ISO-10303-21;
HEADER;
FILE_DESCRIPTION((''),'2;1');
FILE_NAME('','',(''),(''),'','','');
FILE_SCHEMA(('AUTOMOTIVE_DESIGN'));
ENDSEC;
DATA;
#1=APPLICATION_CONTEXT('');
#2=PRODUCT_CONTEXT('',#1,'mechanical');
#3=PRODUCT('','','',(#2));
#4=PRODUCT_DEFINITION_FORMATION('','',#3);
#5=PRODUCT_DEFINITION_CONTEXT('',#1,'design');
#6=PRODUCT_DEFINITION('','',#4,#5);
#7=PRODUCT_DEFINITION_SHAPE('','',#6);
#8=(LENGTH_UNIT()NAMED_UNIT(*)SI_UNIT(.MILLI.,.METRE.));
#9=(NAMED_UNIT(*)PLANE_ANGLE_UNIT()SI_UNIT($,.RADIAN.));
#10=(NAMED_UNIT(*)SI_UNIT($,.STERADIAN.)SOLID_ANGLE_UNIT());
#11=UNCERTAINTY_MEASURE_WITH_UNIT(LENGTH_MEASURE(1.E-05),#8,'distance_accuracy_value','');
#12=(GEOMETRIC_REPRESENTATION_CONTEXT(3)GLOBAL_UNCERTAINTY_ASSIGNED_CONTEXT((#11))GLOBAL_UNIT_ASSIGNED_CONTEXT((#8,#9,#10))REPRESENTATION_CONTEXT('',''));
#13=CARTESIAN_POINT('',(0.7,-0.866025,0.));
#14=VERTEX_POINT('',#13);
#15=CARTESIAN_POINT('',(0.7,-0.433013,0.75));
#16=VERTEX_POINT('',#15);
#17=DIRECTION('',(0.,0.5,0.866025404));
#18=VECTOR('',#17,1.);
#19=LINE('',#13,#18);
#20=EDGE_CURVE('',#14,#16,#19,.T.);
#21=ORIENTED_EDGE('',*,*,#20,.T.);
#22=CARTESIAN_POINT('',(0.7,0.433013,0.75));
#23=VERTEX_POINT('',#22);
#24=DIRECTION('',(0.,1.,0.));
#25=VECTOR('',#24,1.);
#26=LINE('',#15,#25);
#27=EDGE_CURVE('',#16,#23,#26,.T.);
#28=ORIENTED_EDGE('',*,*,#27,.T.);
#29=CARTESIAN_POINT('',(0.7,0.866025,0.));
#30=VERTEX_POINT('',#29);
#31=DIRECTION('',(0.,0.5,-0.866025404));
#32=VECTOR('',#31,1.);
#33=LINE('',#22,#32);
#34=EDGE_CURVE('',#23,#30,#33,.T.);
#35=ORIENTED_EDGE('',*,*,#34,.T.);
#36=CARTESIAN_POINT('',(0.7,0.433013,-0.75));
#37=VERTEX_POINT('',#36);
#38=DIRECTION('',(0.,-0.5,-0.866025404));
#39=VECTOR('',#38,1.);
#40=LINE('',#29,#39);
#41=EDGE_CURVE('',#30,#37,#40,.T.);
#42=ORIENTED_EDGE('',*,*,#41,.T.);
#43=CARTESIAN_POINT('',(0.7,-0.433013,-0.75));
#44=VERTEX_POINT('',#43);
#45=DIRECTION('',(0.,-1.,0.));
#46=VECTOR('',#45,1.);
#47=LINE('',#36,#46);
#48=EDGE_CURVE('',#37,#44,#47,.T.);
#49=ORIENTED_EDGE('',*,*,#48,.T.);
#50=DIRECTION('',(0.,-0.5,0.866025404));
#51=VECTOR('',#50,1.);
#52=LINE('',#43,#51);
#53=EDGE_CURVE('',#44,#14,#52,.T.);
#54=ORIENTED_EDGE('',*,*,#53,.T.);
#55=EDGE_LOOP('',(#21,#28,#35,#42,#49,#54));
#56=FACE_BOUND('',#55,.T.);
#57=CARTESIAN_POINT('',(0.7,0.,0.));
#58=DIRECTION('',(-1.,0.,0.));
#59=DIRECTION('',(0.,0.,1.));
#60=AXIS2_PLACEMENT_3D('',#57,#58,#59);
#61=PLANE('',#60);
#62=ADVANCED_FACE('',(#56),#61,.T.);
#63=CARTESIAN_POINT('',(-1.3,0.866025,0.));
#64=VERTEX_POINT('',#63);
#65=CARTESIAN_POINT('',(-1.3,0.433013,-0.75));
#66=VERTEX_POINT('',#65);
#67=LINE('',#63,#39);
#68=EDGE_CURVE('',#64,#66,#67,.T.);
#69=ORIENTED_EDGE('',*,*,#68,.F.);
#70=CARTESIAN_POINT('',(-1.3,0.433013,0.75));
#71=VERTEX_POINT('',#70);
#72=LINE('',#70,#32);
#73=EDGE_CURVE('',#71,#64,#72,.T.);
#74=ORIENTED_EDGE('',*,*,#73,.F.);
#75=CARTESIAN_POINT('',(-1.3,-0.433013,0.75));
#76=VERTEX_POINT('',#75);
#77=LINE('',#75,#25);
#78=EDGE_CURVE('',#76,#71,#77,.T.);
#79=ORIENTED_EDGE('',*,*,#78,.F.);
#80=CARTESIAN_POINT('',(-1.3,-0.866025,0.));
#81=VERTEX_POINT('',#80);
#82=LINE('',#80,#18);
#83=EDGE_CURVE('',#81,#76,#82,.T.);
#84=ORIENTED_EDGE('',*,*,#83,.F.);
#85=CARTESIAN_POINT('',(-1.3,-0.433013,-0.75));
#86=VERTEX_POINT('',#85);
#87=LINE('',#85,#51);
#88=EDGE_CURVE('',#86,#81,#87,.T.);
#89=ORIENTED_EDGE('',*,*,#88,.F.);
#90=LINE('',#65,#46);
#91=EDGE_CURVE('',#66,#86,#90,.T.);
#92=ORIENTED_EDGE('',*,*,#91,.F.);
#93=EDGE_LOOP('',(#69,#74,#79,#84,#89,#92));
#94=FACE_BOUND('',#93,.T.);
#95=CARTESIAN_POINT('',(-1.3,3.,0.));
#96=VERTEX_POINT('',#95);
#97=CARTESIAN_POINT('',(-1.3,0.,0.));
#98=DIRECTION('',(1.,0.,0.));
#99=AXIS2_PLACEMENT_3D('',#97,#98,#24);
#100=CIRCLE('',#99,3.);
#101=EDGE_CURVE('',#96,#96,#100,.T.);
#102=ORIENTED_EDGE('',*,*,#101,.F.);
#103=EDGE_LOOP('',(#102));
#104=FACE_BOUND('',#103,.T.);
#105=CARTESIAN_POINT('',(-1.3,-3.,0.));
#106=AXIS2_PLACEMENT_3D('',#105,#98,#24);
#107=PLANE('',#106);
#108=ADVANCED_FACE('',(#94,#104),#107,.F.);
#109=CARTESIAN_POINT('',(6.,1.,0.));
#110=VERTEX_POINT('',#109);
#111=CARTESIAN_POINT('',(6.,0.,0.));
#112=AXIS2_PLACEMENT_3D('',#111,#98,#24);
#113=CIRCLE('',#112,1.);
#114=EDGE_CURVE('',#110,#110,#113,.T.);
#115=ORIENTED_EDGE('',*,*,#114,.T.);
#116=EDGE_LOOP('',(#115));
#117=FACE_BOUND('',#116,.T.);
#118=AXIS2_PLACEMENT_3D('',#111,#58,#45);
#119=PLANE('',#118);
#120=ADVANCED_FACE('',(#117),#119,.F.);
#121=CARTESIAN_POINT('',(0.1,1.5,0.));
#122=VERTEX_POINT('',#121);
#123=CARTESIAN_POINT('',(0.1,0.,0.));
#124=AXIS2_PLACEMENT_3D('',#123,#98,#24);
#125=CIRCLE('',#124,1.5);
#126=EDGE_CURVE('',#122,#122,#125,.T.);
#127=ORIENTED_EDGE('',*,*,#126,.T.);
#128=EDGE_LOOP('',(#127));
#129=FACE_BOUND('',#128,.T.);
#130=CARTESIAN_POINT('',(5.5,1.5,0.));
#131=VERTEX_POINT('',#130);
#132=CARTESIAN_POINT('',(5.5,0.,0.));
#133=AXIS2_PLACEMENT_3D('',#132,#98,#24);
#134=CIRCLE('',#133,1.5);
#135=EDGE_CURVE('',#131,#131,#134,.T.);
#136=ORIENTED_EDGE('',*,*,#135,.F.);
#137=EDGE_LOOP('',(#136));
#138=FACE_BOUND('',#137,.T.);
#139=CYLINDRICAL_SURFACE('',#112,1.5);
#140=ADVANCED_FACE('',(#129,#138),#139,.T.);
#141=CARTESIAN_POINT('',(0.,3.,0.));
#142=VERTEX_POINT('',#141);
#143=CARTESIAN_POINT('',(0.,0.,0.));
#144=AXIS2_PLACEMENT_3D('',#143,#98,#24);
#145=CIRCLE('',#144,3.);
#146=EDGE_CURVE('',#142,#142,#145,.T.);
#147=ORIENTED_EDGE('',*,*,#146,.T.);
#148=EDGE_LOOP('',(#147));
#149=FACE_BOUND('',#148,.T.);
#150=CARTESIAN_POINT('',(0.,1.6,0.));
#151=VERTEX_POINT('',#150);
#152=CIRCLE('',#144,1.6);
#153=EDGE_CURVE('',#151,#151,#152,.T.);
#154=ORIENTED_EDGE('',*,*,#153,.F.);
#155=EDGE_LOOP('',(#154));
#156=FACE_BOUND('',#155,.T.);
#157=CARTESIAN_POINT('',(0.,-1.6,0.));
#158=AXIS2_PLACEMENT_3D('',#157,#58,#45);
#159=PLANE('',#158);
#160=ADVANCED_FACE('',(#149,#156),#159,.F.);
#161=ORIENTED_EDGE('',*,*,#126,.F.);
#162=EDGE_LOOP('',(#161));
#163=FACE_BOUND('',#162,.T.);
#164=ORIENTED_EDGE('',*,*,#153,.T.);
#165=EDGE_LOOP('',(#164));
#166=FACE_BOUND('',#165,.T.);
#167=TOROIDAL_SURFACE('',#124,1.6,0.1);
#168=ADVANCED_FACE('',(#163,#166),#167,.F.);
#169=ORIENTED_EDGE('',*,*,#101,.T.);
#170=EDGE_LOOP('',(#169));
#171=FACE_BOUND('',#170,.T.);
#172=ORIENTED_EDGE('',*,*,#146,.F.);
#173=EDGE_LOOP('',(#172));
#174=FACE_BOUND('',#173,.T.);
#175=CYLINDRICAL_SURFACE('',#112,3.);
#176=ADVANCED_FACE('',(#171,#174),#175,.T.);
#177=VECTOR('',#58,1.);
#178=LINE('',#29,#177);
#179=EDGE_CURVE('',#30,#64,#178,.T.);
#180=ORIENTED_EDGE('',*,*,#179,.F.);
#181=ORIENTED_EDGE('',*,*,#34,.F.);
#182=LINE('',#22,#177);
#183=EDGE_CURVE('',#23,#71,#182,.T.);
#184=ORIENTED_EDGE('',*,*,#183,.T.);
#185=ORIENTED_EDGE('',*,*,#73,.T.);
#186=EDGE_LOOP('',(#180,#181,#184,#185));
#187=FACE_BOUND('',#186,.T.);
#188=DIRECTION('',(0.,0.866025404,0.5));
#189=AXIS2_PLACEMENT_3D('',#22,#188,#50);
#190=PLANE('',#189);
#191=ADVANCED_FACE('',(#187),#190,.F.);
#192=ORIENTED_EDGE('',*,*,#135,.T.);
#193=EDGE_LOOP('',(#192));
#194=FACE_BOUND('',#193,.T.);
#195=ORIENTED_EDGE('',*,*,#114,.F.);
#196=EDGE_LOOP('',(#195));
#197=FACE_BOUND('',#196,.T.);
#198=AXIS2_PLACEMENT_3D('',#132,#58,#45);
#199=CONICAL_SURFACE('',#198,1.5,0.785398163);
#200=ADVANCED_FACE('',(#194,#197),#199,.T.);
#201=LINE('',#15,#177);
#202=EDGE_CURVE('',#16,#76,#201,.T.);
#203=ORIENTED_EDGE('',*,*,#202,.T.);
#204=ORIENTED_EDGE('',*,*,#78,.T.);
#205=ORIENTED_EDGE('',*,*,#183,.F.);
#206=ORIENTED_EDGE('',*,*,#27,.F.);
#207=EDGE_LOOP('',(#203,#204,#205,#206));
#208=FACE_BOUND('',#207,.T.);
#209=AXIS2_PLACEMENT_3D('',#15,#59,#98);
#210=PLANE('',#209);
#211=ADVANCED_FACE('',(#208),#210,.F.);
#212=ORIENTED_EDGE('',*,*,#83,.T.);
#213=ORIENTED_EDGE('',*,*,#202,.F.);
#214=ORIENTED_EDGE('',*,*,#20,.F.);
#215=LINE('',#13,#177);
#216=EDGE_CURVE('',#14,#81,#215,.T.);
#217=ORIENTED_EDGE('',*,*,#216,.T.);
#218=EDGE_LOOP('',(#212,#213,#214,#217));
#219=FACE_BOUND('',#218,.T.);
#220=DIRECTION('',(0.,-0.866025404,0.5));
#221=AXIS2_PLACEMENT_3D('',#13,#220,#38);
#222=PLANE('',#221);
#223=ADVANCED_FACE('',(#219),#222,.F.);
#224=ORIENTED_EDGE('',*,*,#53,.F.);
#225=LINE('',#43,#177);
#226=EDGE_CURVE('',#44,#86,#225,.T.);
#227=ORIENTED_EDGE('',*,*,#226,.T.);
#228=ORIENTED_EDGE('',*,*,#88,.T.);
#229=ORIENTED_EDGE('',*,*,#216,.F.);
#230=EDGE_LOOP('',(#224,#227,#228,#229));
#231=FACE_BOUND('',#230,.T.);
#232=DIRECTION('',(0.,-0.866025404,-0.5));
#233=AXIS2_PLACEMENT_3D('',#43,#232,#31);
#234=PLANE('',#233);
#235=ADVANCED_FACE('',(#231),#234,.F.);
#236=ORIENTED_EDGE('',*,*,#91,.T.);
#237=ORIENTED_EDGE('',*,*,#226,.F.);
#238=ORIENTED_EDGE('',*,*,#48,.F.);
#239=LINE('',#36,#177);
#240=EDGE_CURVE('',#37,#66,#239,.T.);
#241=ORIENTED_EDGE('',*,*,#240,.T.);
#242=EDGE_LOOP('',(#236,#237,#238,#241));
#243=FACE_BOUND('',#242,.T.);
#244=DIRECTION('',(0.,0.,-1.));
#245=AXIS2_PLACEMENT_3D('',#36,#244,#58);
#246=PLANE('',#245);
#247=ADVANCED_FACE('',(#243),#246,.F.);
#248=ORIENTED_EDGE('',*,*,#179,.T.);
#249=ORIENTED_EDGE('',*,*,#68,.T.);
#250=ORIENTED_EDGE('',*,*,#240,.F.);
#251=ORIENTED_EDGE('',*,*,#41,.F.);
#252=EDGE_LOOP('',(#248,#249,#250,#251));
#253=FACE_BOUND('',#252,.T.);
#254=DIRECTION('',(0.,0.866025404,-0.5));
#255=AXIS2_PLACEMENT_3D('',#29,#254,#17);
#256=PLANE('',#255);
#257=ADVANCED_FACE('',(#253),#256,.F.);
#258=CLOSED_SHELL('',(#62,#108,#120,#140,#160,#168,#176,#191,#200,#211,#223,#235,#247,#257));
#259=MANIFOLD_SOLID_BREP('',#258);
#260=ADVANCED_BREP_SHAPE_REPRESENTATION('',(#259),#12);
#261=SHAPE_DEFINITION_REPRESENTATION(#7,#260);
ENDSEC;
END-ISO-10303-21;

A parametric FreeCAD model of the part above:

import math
import FreeCAD as App
import Part
import Sketcher
Q = App.Units.Quantity

doc = App.newDocument("Part")
params = doc.addObject("Spreadsheet::Sheet", "Params")
for row, (alias, value) in enumerate([
    ("sketch1_radius", "0.1 mm"),
    ("sketch1_height", "3 mm"),
    ("sketch1_height2", "1 mm"),
    ("sketch1_width", "7.3 mm"),
    ("sketch1_width2", "1.3 mm"),
    ("revolution_angle", "360 deg"),
    ("pocket1_length", "2 mm"),
], start=1):
    params.set(f"A{row}", alias)
    params.set(f"B{row}", "=" + value)
    params.setAlias(f"B{row}", alias)

body = doc.addObject("PartDesign::Body", "Body")

# Sketch on XY plane
sketch1 = doc.addObject("Sketcher::SketchObject", "Sketch")
body.addObject(sketch1)
sketch1.AttachmentSupport = (doc.XY_Plane, [""])
sketch1.MapMode = "FlatFace"
sketch1.addGeometry([
    Part.LineSegment(App.Vector(6, 0, 0), App.Vector(-1.3, 0, 0)),  # 0
    Part.LineSegment(App.Vector(-1.3, 0, 0), App.Vector(-1.3, -3, 0)),  # 1
    Part.LineSegment(App.Vector(-1.3, -3, 0), App.Vector(0, -3, 0)),  # 2
    Part.LineSegment(App.Vector(0, -3, 0), App.Vector(0, -1.6, 0)),  # 3
    Part.ArcOfCircle(Part.Circle(App.Vector(0.1, -1.6, 0), App.Vector(0, 0, 1), 0.1), math.radians(90), math.radians(180)),  # 4
    Part.LineSegment(App.Vector(0.1, -1.5, 0), App.Vector(5.5, -1.5, 0)),  # 5
    Part.LineSegment(App.Vector(5.5, -1.5, 0), App.Vector(6, -1, 0)),  # 6
    Part.LineSegment(App.Vector(6, -1, 0), App.Vector(6, 0, 0)),  # 7
], False)
sketch1.addConstraint([
    Sketcher.Constraint("Coincident", 0, 2, 1, 1),
    Sketcher.Constraint("Coincident", 1, 2, 2, 1),
    Sketcher.Constraint("Coincident", 2, 2, 3, 1),
    Sketcher.Constraint("Tangent", 3, 2, 4, 2),
    Sketcher.Constraint("Tangent", 4, 1, 5, 1),
    Sketcher.Constraint("Coincident", 5, 2, 6, 1),
    Sketcher.Constraint("Coincident", 6, 2, 7, 1),
    Sketcher.Constraint("Coincident", 7, 2, 0, 1),
    Sketcher.Constraint("Horizontal", 0),
    Sketcher.Constraint("Vertical", 1),
    Sketcher.Constraint("Horizontal", 2),
    Sketcher.Constraint("Vertical", 3),
    Sketcher.Constraint("Horizontal", 5),
    Sketcher.Constraint("Vertical", 7),
    Sketcher.Constraint("PointOnObject", 0, 2, -1),
    Sketcher.Constraint("PointOnObject", 2, 2, -2),
    Sketcher.Constraint("Radius", 4, Q("0.1 mm")),
    Sketcher.Constraint("DistanceY", 1, 2, 1, 1, Q("3 mm")),
    Sketcher.Constraint("DistanceY", 7, 1, 7, 2, Q("1 mm")),
    Sketcher.Constraint("Angle", 6, Q("45 deg")),
    Sketcher.Constraint("DistanceX", 0, 2, 0, 1, Q("7.3 mm")),
    Sketcher.Constraint("DistanceX", 2, 1, 2, 2, Q("1.3 mm")),
    Sketcher.Constraint("DistanceX", 5, 1, 5, 2, Q("5.4 mm")),
])
sketch1.setExpression("Constraints[16]", "Params.sketch1_radius")
sketch1.setExpression("Constraints[17]", "Params.sketch1_height")
sketch1.setExpression("Constraints[18]", "Params.sketch1_height2")
sketch1.setExpression("Constraints[20]", "Params.sketch1_width")
sketch1.setExpression("Constraints[21]", "Params.sketch1_width2")
revolution = doc.addObject("PartDesign::Revolution", "Revolution")
body.addObject(revolution)
revolution.Profile = sketch1
revolution.ReferenceAxis = (sketch1, ["H_Axis"])
revolution.setExpression("Angle", "Params.revolution_angle")

# Sketch on YZ plane
sketch2 = doc.addObject("Sketcher::SketchObject", "Sketch001")
body.addObject(sketch2)
sketch2.AttachmentSupport = (doc.YZ_Plane, [""])
sketch2.MapMode = "FlatFace"
sketch2.AttachmentOffset = App.Placement(App.Vector(0, 0, -1.3), App.Rotation())
sketch2.addGeometry([
    Part.LineSegment(App.Vector(0.9, 0, 0), App.Vector(0.4, -0.8, 0)),  # 0
    Part.LineSegment(App.Vector(0.4, -0.8, 0), App.Vector(-0.4, -0.8, 0)),  # 1
    Part.LineSegment(App.Vector(-0.4, -0.8, 0), App.Vector(-0.9, 0, 0)),  # 2
    Part.LineSegment(App.Vector(-0.9, 0, 0), App.Vector(-0.4, 0.8, 0)),  # 3
    Part.LineSegment(App.Vector(-0.4, 0.8, 0), App.Vector(0.4, 0.8, 0)),  # 4
    Part.LineSegment(App.Vector(0.4, 0.8, 0), App.Vector(0.9, 0, 0)),  # 5
], False)
sketch2.addConstraint([
    Sketcher.Constraint("Coincident", 0, 2, 1, 1),
    Sketcher.Constraint("Coincident", 1, 2, 2, 1),
    Sketcher.Constraint("Coincident", 2, 2, 3, 1),
    Sketcher.Constraint("Coincident", 3, 2, 4, 1),
    Sketcher.Constraint("Coincident", 4, 2, 5, 1),
    Sketcher.Constraint("Coincident", 5, 2, 0, 1),
    Sketcher.Constraint("Horizontal", 1),
    Sketcher.Constraint("Horizontal", 4),
    Sketcher.Constraint("Symmetric", 0, 2, 3, 2, -1, 1),
    Sketcher.Constraint("Symmetric", 2, 2, 5, 2, -1, 1),
    Sketcher.Constraint("PointOnObject", 2, 2, -1),
    Sketcher.Constraint("Parallel", 2, 5),
    Sketcher.Constraint("Vertical", 1, 2, 3, 2),
    Sketcher.Constraint("Angle", 0, Q("-120 deg")),
    Sketcher.Constraint("DistanceY", 1, 2, 3, 2, Q("1.5 mm")),
    Sketcher.Constraint("DistanceX", 1, 2, 1, 1, Q("0.866025 mm")),
])
pocket1 = doc.addObject("PartDesign::Pocket", "Pocket")
body.addObject(pocket1)
pocket1.Profile = sketch2
pocket1.setExpression("Length", "Params.pocket1_length")
pocket1.Reversed = True

doc.recompute()
